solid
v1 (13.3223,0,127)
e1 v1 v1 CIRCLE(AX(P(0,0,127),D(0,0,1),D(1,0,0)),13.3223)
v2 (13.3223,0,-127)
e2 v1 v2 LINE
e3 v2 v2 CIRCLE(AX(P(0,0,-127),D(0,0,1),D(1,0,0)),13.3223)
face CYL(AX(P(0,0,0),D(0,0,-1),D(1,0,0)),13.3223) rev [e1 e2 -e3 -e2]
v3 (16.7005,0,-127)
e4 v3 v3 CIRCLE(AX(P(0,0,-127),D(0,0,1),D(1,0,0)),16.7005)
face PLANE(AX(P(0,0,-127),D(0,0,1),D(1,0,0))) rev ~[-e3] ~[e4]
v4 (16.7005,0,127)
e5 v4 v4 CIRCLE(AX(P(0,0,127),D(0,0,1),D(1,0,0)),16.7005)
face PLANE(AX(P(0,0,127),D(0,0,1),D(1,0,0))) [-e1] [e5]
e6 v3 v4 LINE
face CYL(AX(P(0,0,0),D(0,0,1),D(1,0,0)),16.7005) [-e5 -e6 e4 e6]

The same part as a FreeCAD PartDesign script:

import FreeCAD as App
import Part
import Sketcher
from FreeCAD import Vector
Q = App.Units.Quantity

doc = App.newDocument("Part")
body = doc.addObject("PartDesign::Body", "Body")

# Sketch on XY plane
sketch1 = body.newObject("Sketcher::SketchObject", "Sketch")
sketch1.AttachmentSupport = (doc.getObject("XY_Plane"), [""])
sketch1.MapMode = "FlatFace"
sketch1.addGeometry(Part.Circle(Vector(0, 0, 0), Vector(0, 0, 1), 17), False)
sketch1.addGeometry(Part.Circle(Vector(0, 0, 0), Vector(0, 0, 1), 13), False)
sketch1.addConstraint(Sketcher.Constraint("Coincident", 0, 3, -1, 1))
sketch1.addConstraint(Sketcher.Constraint("Coincident", 1, 3, -1, 1))
sketch1.addConstraint(Sketcher.Constraint("Diameter", 0, Q("1.315 in")))
sketch1.addConstraint(Sketcher.Constraint("Diameter", 1, Q("1.049 in")))
pad1 = body.newObject("PartDesign::Pad", "Pad")
pad1.Profile = sketch1
pad1.Length = Q("10 in")
pad1.Midplane = True

doc.recompute()
